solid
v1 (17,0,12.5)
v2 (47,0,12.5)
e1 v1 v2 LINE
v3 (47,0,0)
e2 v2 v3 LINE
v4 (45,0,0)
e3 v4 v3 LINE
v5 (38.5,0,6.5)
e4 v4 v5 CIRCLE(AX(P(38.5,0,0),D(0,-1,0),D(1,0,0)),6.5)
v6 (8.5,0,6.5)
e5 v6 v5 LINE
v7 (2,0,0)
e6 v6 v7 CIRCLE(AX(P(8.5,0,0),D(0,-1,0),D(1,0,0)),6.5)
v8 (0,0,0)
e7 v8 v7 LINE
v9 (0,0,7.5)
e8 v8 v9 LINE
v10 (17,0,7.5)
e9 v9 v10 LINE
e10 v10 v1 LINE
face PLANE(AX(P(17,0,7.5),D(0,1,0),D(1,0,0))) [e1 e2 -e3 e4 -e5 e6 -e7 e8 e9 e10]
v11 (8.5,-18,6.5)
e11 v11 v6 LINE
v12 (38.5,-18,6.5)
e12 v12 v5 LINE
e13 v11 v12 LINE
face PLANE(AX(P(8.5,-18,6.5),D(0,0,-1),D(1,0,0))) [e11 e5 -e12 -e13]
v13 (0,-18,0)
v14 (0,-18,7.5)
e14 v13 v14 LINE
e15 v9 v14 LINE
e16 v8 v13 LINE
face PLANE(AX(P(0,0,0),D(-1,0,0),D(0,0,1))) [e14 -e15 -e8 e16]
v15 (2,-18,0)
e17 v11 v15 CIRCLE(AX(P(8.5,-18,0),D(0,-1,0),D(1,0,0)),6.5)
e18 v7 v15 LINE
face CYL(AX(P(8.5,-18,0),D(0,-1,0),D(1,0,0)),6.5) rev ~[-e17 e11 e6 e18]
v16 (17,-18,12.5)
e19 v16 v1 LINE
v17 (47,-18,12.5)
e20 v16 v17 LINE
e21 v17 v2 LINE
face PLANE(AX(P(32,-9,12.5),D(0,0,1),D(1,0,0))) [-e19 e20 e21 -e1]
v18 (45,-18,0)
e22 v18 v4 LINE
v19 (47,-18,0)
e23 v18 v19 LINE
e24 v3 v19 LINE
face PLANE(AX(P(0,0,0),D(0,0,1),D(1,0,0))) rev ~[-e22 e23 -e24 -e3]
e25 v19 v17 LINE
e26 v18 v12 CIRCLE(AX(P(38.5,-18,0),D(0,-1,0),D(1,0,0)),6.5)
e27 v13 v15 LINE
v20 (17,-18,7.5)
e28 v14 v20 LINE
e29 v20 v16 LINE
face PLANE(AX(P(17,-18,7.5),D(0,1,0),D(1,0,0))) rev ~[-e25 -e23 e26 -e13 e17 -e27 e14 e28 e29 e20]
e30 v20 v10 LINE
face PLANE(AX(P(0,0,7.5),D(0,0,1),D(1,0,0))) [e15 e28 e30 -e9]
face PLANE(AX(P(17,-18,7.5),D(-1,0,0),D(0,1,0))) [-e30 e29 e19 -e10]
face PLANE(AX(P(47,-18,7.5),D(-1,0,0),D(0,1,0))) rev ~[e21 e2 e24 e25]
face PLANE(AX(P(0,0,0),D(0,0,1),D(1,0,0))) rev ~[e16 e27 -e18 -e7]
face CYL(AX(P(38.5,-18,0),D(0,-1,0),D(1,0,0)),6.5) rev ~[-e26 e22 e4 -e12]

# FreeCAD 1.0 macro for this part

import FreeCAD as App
import Part
import Sketcher
from FreeCAD import Vector
Q = App.Units.Quantity

doc = App.newDocument("Part")
body = doc.addObject("PartDesign::Body", "Body")

# Sketch on XZ plane
sketch1 = body.newObject("Sketcher::SketchObject", "Sketch")
sketch1.AttachmentSupport = (doc.getObject("XZ_Plane"), [""])
sketch1.MapMode = "FlatFace"
sketch1.addGeometry(Part.LineSegment(Vector(0, 8, 0), Vector(0, 0, 0)), False)
sketch1.addGeometry(Part.LineSegment(Vector(0, 0, 0), Vector(47, 0, 0)), False)
sketch1.addGeometry(Part.LineSegment(Vector(47, 0, 0), Vector(47, 8, 0)), False)
sketch1.addGeometry(Part.LineSegment(Vector(47, 8, 0), Vector(0, 8, 0)), False)
sketch1.addConstraint(Sketcher.Constraint("Coincident", 0, 2, 1, 1))
sketch1.addConstraint(Sketcher.Constraint("Coincident", 1, 2, 2, 1))
sketch1.addConstraint(Sketcher.Constraint("Coincident", 2, 2, 3, 1))
sketch1.addConstraint(Sketcher.Constraint("Coincident", 3, 2, 0, 1))
sketch1.addConstraint(Sketcher.Constraint("Vertical", 0))
sketch1.addConstraint(Sketcher.Constraint("Horizontal", 1))
sketch1.addConstraint(Sketcher.Constraint("Vertical", 2))
sketch1.addConstraint(Sketcher.Constraint("Horizontal", 3))
sketch1.addConstraint(Sketcher.Constraint("Coincident", 0, 2, -1, 1))
sketch1.addConstraint(Sketcher.Constraint("DistanceX", 1, 1, 1, 2, Q("47 mm")))
sketch1.addConstraint(Sketcher.Constraint("DistanceY", 0, 2, 0, 1, Q("7.5 mm")))
pad1 = body.newObject("PartDesign::Pad", "Pad")
pad1.Profile = sketch1
pad1.Length = 18

# Sketch on XZ plane
sketch2 = body.newObject("Sketcher::SketchObject", "Sketch001")
sketch2.AttachmentSupport = (doc.getObject("XZ_Plane"), [""])
sketch2.MapMode = "FlatFace"
sketch2.AttachmentOffset = App.Placement(Vector(0, 0, 18), App.Rotation())
sketch2.addGeometry(Part.LineSegment(Vector(8, 6, 0), Vector(8, 0, 0)), False)
sketch2.addGeometry(Part.LineSegment(Vector(8, 0, 0), Vector(38, 0, 0)), False)
sketch2.addGeometry(Part.LineSegment(Vector(38, 0, 0), Vector(38, 6, 0)), False)
sketch2.addGeometry(Part.LineSegment(Vector(38, 6, 0), Vector(8, 6, 0)), False)
sketch2.addConstraint(Sketcher.Constraint("Coincident", 0, 2, 1, 1))
sketch2.addConstraint(Sketcher.Constraint("Coincident", 1, 2, 2, 1))
sketch2.addConstraint(Sketcher.Constraint("Coincident", 2, 2, 3, 1))
sketch2.addConstraint(Sketcher.Constraint("Coincident", 3, 2, 0, 1))
sketch2.addConstraint(Sketcher.Constraint("Vertical", 0))
sketch2.addConstraint(Sketcher.Constraint("Horizontal", 1))
sketch2.addConstraint(Sketcher.Constraint("Vertical", 2))
sketch2.addConstraint(Sketcher.Constraint("Horizontal", 3))
sketch2.addConstraint(Sketcher.Constraint("PointOnObject", 0, 2, -1))
sketch2.addConstraint(Sketcher.Constraint("DistanceX", 1, 1, 1, 2, Q("30 mm")))
sketch2.addConstraint(Sketcher.Constraint("DistanceY", 0, 2, 0, 1, Q("6.5 mm")))
sketch2.addConstraint(Sketcher.Constraint("DistanceX", -1, 1, 0, 2, Q("8.5 mm")))
pocket1 = body.newObject("PartDesign::Pocket", "Pocket")
pocket1.Profile = sketch2
pocket1.Length = 25

# Sketch on XZ plane
sketch3 = body.newObject("Sketcher::SketchObject", "Sketch002")
sketch3.AttachmentSupport = (doc.getObject("XZ_Plane"), [""])
sketch3.MapMode = "FlatFace"
sketch3.AttachmentOffset = App.Placement(Vector(0, 0, 18), App.Rotation())
sketch3.addGeometry(Part.Circle(Vector(8, 0, 0), Vector(0, 0, 1), 6), False)
sketch3.addConstraint(Sketcher.Constraint("PointOnObject", 0, 3, -1))
sketch3.addConstraint(Sketcher.Constraint("Diameter", 0, Q("13 mm")))
sketch3.addConstraint(Sketcher.Constraint("DistanceX", -1, 1, 0, 3, Q("8.5 mm")))
pocket2 = body.newObject("PartDesign::Pocket", "Pocket001")
pocket2.Profile = sketch3
pocket2.Length = 25

# Sketch on XZ plane
sketch4 = body.newObject("Sketcher::SketchObject", "Sketch003")
sketch4.AttachmentSupport = (doc.getObject("XZ_Plane"), [""])
sketch4.MapMode = "FlatFace"
sketch4.AttachmentOffset = App.Placement(Vector(0, 0, 18), App.Rotation())
sketch4.addGeometry(Part.Circle(Vector(38, 0, 0), Vector(0, 0, 1), 6), False)
sketch4.addConstraint(Sketcher.Constraint("PointOnObject", 0, 3, -1))
sketch4.addConstraint(Sketcher.Constraint("Diameter", 0, Q("13 mm")))
sketch4.addConstraint(Sketcher.Constraint("DistanceX", -1, 1, 0, 3, Q("38.5 mm")))
pocket3 = body.newObject("PartDesign::Pocket", "Pocket002")
pocket3.Profile = sketch4
pocket3.Length = 25

# Sketch on XY plane
sketch5 = body.newObject("Sketcher::SketchObject", "Sketch004")
sketch5.AttachmentSupport = (doc.getObject("XY_Plane"), [""])
sketch5.MapMode = "FlatFace"
sketch5.AttachmentOffset = App.Placement(Vector(0, 0, 7.5), App.Rotation())
sketch5.addGeometry(Part.LineSegment(Vector(17, 0, 0), Vector(17, -18, 0)), False)
sketch5.addGeometry(Part.LineSegment(Vector(17, -18, 0), Vector(47, -18, 0)), False)
sketch5.addGeometry(Part.LineSegment(Vector(47, -18, 0), Vector(47, 0, 0)), False)
sketch5.addGeometry(Part.LineSegment(Vector(47, 0, 0), Vector(17, 0, 0)), False)
sketch5.addConstraint(Sketcher.Constraint("Coincident", 0, 2, 1, 1))
sketch5.addConstraint(Sketcher.Constraint("Coincident", 1, 2, 2, 1))
sketch5.addConstraint(Sketcher.Constraint("Coincident", 2, 2, 3, 1))
sketch5.addConstraint(Sketcher.Constraint("Coincident", 3, 2, 0, 1))
sketch5.addConstraint(Sketcher.Constraint("Vertical", 0))
sketch5.addConstraint(Sketcher.Constraint("Horizontal", 1))
sketch5.addConstraint(Sketcher.Constraint("Vertical", 2))
sketch5.addConstraint(Sketcher.Constraint("Horizontal", 3))
sketch5.addConstraint(Sketcher.Constraint("PointOnObject", 2, 2, -1))
sketch5.addConstraint(Sketcher.Constraint("DistanceX", 1, 1, 1, 2, Q("30 mm")))
sketch5.addConstraint(Sketcher.Constraint("DistanceY", 0, 2, 0, 1, Q("18 mm")))
sketch5.addConstraint(Sketcher.Constraint("DistanceX", -1, 1, 0, 2, Q("17 mm")))
pad2 = body.newObject("PartDesign::Pad", "Pad001")
pad2.Profile = sketch5
pad2.Length = 5

doc.recompute()
